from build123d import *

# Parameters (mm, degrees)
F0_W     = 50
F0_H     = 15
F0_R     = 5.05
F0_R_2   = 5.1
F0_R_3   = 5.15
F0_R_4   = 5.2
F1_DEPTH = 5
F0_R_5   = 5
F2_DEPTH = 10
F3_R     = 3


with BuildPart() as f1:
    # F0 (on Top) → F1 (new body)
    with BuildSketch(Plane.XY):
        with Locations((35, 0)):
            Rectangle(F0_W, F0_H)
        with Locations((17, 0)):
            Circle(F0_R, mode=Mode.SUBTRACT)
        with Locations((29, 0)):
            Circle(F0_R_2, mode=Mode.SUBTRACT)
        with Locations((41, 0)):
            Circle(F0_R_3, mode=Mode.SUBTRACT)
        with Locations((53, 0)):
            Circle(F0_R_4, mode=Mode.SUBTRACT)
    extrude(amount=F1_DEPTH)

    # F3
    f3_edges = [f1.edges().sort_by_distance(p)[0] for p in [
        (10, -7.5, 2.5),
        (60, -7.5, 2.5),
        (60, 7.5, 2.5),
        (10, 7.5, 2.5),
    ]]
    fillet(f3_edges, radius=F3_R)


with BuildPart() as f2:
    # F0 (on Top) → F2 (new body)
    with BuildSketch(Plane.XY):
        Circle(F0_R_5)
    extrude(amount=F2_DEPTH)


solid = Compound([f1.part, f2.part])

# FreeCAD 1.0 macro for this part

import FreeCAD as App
import Part
import Sketcher
from FreeCAD import Vector


def edges_at(feature, points):
    """Names of the edges that pass closest to the given points."""
    edges = feature.Shape.Edges
    near = lambda p: min(range(len(edges)), key=lambda i: edges[i].distToShape(Part.Vertex(*p))[0])
    return sorted({f"Edge{near(p) + 1}" for p in points})

doc = App.newDocument("Part")
body = doc.addObject("PartDesign::Body", "Body")

sketch1 = doc.addObject("Sketcher::SketchObject", "Sketch")
body.addObject(sketch1)
sketch1.AttachmentSupport = (doc.XY_Plane, [""])
sketch1.MapMode = "FlatFace"
sketch1.addGeometry([
    Part.LineSegment(Vector(10, 8, 0), Vector(10, -8, 0)),
    Part.LineSegment(Vector(10, -8, 0), Vector(60, -8, 0)),
    Part.LineSegment(Vector(60, -8, 0), Vector(60, 8, 0)),
    Part.LineSegment(Vector(60, 8, 0), Vector(10, 8, 0)),
    Part.Circle(Vector(17, 0, 0), Vector(0, 0, 1), 5),
    Part.Circle(Vector(29, 0, 0), Vector(0, 0, 1), 5),
    Part.Circle(Vector(41, 0, 0), Vector(0, 0, 1), 5),
    Part.Circle(Vector(53, 0, 0), Vector(0, 0, 1), 5),
], False)
sketch1.addConstraint([
    Sketcher.Constraint("Coincident", 0, 2, 1, 1),
    Sketcher.Constraint("Coincident", 1, 2, 2, 1),
    Sketcher.Constraint("Coincident", 2, 2, 3, 1),
    Sketcher.Constraint("Coincident", 3, 2, 0, 1),
    Sketcher.Constraint("Vertical", 0),
    Sketcher.Constraint("Horizontal", 1),
    Sketcher.Constraint("Vertical", 2),
    Sketcher.Constraint("Horizontal", 3),
    Sketcher.Constraint("PointOnObject", 4, 3, -1),
    Sketcher.Constraint("PointOnObject", 5, 3, -1),
    Sketcher.Constraint("PointOnObject", 6, 3, -1),
    Sketcher.Constraint("PointOnObject", 7, 3, -1),
    Sketcher.Constraint("Diameter", 4, 10.1),
    Sketcher.Constraint("Diameter", 5, 10.2),
    Sketcher.Constraint("Diameter", 6, 10.3),
    Sketcher.Constraint("Diameter", 7, 10.4),
    Sketcher.Constraint("DistanceX", 1, 1, 1, 2, 50.0),
    Sketcher.Constraint("DistanceY", 0, 2, 0, 1, 15.0),
    Sketcher.Constraint("DistanceX", -1, 1, 4, 3, 17.0),
    Sketcher.Constraint("DistanceX", -1, 1, 5, 3, 29.0),
    Sketcher.Constraint("DistanceX", -1, 1, 6, 3, 41.0),
    Sketcher.Constraint("DistanceX", -1, 1, 7, 3, 53.0),
    Sketcher.Constraint("DistanceX", -1, 1, 0, 2, 10.0),
    Sketcher.Constraint("DistanceY", 0, 2, -1, 1, 7.5),
])
pad1 = doc.addObject("PartDesign::Pad", "Pad")
body.addObject(pad1)
pad1.Profile = sketch1
pad1.Length = 5
doc.recompute()

fillet = doc.addObject("PartDesign::Fillet", "Fillet")
body.addObject(fillet)
fillet.Base = (pad1, edges_at(pad1, [
    (10, -7.5, 2.5),
    (60, -7.5, 2.5),
    (60, 7.5, 2.5),
    (10, 7.5, 2.5),
]))
fillet.Radius = 3
body2 = doc.addObject("PartDesign::Body", "Body001")

sketch2 = doc.addObject("Sketcher::SketchObject", "Sketch001")
body2.addObject(sketch2)
sketch2.AttachmentSupport = (doc.getObject("XY_Plane001"), [""])
sketch2.MapMode = "FlatFace"
sketch2.addGeometry(Part.Circle(Vector(0, 0, 0), Vector(0, 0, 1), 5), False)
sketch2.addConstraint([
    Sketcher.Constraint("Coincident", 0, 3, -1, 1),
    Sketcher.Constraint("Diameter", 0, 10.0),
])
pad2 = doc.addObject("PartDesign::Pad", "Pad001")
body2.addObject(pad2)
pad2.Profile = sketch2
pad2.Length = 10

doc.recompute()
